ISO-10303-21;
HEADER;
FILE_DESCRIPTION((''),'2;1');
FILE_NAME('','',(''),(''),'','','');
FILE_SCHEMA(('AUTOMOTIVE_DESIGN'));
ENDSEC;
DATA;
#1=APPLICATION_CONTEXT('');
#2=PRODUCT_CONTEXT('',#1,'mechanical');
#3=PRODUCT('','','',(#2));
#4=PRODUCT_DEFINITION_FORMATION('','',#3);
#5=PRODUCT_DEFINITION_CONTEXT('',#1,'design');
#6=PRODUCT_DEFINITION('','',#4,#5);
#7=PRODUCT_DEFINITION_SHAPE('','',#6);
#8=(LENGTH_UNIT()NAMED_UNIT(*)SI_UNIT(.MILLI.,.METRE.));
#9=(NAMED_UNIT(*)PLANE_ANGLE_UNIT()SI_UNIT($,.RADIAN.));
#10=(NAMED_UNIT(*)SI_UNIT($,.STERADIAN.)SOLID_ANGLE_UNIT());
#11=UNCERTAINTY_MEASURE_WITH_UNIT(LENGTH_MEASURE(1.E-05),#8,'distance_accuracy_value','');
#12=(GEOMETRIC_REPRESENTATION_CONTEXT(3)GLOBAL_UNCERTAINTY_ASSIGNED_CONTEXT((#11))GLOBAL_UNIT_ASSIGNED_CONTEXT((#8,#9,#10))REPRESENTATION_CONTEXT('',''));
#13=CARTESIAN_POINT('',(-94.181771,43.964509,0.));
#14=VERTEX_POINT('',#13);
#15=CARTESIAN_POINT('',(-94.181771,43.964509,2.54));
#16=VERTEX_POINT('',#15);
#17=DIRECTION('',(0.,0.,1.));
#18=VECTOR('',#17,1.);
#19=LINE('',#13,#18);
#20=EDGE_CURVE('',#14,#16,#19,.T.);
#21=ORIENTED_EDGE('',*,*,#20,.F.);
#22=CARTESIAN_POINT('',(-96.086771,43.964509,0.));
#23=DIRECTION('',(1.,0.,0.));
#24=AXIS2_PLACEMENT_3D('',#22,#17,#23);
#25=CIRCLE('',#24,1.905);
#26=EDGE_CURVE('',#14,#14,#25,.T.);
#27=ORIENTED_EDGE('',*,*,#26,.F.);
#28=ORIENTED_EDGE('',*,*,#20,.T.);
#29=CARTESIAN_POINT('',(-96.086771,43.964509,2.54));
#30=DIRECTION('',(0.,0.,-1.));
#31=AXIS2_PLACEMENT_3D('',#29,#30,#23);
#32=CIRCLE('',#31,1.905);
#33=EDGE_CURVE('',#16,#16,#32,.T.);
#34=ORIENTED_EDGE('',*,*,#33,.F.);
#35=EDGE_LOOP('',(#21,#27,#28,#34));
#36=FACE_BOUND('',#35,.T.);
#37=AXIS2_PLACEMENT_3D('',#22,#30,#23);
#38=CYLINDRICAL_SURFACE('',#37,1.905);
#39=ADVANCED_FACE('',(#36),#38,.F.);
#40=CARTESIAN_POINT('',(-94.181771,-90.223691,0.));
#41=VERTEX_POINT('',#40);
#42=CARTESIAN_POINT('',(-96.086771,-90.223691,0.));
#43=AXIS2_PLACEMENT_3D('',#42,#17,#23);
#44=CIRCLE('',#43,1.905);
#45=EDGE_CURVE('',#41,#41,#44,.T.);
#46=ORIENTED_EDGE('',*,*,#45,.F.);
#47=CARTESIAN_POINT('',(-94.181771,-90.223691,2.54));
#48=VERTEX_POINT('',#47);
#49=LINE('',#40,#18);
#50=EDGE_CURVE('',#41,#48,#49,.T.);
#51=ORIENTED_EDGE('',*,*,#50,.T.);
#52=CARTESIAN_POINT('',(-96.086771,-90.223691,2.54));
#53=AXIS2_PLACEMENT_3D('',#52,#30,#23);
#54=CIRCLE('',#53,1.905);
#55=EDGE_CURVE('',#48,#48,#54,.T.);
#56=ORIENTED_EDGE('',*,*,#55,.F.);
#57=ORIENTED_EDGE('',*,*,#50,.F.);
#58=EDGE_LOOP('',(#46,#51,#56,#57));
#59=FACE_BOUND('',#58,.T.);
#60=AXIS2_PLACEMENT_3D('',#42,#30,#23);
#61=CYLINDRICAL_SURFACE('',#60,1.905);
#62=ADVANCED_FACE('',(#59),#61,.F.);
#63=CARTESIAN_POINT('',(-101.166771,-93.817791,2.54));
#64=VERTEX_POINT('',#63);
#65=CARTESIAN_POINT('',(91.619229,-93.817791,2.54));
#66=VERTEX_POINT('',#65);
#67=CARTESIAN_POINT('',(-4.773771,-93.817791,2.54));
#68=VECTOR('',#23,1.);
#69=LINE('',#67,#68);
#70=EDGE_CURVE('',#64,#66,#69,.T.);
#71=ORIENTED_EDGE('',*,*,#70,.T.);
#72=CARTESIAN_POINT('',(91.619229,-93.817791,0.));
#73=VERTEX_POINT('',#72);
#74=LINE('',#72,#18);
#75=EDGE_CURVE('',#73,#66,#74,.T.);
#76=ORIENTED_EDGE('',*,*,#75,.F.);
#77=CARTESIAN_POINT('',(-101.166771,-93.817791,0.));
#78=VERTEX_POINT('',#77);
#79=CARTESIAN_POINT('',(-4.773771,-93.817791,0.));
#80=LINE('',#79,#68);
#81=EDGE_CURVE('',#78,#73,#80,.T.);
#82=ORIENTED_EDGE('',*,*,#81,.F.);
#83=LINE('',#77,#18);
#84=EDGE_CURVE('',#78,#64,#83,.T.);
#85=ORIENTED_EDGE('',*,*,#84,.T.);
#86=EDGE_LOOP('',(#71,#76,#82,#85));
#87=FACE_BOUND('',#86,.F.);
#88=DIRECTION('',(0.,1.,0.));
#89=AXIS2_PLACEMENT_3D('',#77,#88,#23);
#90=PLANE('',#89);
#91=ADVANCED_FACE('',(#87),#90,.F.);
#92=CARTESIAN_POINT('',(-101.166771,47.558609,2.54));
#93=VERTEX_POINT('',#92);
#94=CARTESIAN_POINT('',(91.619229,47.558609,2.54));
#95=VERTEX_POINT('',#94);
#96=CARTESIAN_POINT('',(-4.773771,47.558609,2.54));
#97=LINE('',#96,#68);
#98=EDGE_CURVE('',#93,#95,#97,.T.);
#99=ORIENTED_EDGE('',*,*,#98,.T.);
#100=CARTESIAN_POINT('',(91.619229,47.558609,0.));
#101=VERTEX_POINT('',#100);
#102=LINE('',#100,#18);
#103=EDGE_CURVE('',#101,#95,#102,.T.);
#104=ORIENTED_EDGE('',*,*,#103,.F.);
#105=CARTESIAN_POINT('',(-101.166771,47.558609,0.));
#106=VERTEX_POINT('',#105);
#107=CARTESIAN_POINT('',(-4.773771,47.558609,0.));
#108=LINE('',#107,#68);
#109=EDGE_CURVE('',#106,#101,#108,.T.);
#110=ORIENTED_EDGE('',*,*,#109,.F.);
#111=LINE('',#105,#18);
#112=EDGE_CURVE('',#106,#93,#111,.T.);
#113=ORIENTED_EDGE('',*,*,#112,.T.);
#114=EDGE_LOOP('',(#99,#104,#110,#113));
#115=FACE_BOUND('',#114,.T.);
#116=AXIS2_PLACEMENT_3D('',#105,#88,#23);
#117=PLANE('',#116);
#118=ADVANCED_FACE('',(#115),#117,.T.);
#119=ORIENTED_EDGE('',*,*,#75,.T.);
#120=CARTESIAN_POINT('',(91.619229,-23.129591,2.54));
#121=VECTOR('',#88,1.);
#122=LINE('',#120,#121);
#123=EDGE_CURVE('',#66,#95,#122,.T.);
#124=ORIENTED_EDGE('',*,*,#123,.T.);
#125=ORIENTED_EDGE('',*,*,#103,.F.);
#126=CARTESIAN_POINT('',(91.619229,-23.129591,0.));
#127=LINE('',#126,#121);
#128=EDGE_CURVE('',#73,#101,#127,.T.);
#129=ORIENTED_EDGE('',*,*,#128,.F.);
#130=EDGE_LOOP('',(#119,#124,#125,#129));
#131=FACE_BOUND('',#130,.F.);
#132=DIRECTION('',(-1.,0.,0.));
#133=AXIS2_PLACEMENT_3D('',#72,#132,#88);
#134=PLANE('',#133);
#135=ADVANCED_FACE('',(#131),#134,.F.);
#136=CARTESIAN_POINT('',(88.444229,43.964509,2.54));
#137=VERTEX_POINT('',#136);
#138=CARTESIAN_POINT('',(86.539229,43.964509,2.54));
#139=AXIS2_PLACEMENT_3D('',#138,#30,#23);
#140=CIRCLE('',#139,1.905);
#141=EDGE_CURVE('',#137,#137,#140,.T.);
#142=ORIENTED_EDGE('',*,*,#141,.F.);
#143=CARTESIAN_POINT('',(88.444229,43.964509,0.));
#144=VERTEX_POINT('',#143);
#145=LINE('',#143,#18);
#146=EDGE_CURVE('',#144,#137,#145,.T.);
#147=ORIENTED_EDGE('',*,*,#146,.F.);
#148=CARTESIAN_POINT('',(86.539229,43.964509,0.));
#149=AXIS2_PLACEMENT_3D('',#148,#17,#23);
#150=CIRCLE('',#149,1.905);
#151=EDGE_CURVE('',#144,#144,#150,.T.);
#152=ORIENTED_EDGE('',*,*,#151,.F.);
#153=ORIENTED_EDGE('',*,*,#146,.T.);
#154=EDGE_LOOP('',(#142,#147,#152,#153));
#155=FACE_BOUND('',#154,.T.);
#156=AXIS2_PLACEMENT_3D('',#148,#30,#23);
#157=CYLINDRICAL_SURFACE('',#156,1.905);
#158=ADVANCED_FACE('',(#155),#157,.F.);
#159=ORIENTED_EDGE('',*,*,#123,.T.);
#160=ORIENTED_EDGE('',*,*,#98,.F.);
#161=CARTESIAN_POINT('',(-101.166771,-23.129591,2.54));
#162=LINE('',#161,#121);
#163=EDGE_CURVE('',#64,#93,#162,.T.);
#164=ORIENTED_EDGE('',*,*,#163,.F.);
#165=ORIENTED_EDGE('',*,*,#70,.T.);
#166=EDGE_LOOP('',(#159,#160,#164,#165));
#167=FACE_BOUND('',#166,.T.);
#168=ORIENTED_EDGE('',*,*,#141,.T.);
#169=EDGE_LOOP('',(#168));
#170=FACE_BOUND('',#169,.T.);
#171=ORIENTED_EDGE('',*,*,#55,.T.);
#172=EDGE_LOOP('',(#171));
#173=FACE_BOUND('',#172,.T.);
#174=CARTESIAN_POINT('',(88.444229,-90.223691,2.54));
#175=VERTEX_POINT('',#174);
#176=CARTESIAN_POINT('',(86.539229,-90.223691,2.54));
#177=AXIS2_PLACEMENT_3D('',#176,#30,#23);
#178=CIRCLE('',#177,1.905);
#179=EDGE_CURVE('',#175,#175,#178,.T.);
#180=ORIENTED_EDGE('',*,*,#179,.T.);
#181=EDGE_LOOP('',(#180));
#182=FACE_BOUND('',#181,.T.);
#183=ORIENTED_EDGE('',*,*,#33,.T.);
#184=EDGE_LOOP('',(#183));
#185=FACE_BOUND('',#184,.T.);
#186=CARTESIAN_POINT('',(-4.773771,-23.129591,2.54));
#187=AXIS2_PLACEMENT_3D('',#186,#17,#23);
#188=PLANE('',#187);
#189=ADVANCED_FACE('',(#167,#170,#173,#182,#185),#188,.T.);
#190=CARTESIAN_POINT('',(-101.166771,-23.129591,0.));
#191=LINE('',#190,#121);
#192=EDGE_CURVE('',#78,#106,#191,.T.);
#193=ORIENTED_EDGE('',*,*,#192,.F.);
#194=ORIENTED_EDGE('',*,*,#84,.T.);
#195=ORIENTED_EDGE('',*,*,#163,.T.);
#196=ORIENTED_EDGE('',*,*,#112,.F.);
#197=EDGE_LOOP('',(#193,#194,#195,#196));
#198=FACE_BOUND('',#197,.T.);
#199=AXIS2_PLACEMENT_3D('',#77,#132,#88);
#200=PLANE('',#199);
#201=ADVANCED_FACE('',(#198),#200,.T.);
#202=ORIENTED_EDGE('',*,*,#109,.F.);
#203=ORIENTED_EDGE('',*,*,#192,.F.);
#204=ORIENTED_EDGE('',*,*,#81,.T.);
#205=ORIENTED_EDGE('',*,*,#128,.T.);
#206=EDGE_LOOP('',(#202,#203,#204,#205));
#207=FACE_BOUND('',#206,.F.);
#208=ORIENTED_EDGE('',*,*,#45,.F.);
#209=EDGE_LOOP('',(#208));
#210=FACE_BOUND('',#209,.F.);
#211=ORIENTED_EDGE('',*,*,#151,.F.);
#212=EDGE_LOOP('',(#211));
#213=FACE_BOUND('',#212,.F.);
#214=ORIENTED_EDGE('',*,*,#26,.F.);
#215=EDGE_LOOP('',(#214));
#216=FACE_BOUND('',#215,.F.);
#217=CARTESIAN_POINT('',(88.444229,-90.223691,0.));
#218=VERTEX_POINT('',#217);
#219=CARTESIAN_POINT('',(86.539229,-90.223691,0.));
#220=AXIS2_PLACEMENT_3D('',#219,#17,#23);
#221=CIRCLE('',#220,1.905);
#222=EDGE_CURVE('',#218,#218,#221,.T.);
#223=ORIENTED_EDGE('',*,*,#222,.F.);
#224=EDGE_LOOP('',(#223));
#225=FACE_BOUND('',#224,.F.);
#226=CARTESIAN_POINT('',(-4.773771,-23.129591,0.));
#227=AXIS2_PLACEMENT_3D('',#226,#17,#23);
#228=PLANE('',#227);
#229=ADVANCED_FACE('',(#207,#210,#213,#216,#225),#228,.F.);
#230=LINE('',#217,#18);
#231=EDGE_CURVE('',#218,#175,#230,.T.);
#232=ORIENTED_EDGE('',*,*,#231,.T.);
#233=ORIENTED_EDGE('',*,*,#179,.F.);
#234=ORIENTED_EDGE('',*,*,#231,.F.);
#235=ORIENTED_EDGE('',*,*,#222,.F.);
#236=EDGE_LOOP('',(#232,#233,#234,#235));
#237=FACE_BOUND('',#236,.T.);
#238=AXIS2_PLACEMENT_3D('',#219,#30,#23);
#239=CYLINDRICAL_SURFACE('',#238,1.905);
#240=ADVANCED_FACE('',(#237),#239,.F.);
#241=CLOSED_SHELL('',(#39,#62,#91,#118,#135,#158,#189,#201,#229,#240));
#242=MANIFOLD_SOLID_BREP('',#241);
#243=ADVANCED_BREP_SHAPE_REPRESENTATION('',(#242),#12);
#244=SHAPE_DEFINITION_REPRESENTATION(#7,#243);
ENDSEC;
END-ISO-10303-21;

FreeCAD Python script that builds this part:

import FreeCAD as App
import Part
import Sketcher

V = App.Vector
Q = App.Units.Quantity


def add_polygon(sketch, points):
    """Adds a closed chain of lines whose ends are joined by coincident constraints."""
    first, n = sketch.GeometryCount, len(points)
    for a, b in zip(points, points[1:] + points[:1]):
        sketch.addGeometry(Part.LineSegment(App.Vector(*a, 0), App.Vector(*b, 0)), False)
    for i in range(n):
        sketch.addConstraint(Sketcher.Constraint("Coincident", first + i, 2, first + (i + 1) % n, 1))

doc = App.newDocument("Part")
body = doc.addObject("PartDesign::Body", "Body")

# Sketch on XY plane
sketch1 = doc.addObject("Sketcher::SketchObject", "Sketch")
body.addObject(sketch1)
sketch1.AttachmentSupport = (doc.XY_Plane, [""])
sketch1.MapMode = "FlatFace"
add_polygon(sketch1, [(-101, 48), (-101, -94), (92, -94), (92, 48)])  # lines 0-3
sketch1.addConstraint([
    Sketcher.Constraint("Vertical", 0),
    Sketcher.Constraint("Horizontal", 1),
    Sketcher.Constraint("Vertical", 2),
    Sketcher.Constraint("Horizontal", 3),
    Sketcher.Constraint("DistanceX", 1, 1, 1, 2, Q("7.59 in")),
    Sketcher.Constraint("DistanceY", 0, 2, 0, 1, Q("5.566 in")),
    Sketcher.Constraint("DistanceX", 0, 2, -1, 1, 101.166771),
    Sketcher.Constraint("DistanceY", 0, 2, -1, 1, 93.817791),
])
pad1 = doc.addObject("PartDesign::Pad", "Pad")
body.addObject(pad1)
pad1.Profile = sketch1
pad1.Length = Q("0.1 in")

# Sketch on XY plane
sketch2 = doc.addObject("Sketcher::SketchObject", "Sketch001")
body.addObject(sketch2)
sketch2.AttachmentSupport = (doc.XY_Plane, [""])
sketch2.MapMode = "FlatFace"
sketch2.addGeometry([
    Part.Circle(V(-96.1, 44, 0), V(0, 0, 1), 1.9),
    Part.Circle(V(86.5, 44, 0), V(0, 0, 1), 1.9),
    Part.Circle(V(-96.1, -90.2, 0), V(0, 0, 1), 1.9),
    Part.Circle(V(86.5, -90.2, 0), V(0, 0, 1), 1.9),
], False)
sketch2.addConstraint([
    Sketcher.Constraint("Equal", 0, 1),
    Sketcher.Constraint("Equal", 1, 2),
    Sketcher.Constraint("Equal", 2, 3),
    Sketcher.Constraint("Horizontal", 0, 3, 1, 3),
    Sketcher.Constraint("Horizontal", 2, 3, 3, 3),
    Sketcher.Constraint("Vertical", 0, 3, 2, 3),
    Sketcher.Constraint("Vertical", 1, 3, 3, 3),
    Sketcher.Constraint("Diameter", 0, Q("0.15 in")),
    Sketcher.Constraint("DistanceX", 0, 3, 1, 3, Q("7.19 in")),
    Sketcher.Constraint("DistanceY", 2, 3, 0, 3, Q("5.283 in")),
    Sketcher.Constraint("DistanceX", 0, 3, -1, 1, 96.086771),
    Sketcher.Constraint("DistanceY", -1, 1, 0, 3, 43.964509),
])
pocket1 = doc.addObject("PartDesign::Pocket", "Pocket")
body.addObject(pocket1)
pocket1.Profile = sketch2
pocket1.Length = Q("1 in")
pocket1.Reversed = True

doc.recompute()
